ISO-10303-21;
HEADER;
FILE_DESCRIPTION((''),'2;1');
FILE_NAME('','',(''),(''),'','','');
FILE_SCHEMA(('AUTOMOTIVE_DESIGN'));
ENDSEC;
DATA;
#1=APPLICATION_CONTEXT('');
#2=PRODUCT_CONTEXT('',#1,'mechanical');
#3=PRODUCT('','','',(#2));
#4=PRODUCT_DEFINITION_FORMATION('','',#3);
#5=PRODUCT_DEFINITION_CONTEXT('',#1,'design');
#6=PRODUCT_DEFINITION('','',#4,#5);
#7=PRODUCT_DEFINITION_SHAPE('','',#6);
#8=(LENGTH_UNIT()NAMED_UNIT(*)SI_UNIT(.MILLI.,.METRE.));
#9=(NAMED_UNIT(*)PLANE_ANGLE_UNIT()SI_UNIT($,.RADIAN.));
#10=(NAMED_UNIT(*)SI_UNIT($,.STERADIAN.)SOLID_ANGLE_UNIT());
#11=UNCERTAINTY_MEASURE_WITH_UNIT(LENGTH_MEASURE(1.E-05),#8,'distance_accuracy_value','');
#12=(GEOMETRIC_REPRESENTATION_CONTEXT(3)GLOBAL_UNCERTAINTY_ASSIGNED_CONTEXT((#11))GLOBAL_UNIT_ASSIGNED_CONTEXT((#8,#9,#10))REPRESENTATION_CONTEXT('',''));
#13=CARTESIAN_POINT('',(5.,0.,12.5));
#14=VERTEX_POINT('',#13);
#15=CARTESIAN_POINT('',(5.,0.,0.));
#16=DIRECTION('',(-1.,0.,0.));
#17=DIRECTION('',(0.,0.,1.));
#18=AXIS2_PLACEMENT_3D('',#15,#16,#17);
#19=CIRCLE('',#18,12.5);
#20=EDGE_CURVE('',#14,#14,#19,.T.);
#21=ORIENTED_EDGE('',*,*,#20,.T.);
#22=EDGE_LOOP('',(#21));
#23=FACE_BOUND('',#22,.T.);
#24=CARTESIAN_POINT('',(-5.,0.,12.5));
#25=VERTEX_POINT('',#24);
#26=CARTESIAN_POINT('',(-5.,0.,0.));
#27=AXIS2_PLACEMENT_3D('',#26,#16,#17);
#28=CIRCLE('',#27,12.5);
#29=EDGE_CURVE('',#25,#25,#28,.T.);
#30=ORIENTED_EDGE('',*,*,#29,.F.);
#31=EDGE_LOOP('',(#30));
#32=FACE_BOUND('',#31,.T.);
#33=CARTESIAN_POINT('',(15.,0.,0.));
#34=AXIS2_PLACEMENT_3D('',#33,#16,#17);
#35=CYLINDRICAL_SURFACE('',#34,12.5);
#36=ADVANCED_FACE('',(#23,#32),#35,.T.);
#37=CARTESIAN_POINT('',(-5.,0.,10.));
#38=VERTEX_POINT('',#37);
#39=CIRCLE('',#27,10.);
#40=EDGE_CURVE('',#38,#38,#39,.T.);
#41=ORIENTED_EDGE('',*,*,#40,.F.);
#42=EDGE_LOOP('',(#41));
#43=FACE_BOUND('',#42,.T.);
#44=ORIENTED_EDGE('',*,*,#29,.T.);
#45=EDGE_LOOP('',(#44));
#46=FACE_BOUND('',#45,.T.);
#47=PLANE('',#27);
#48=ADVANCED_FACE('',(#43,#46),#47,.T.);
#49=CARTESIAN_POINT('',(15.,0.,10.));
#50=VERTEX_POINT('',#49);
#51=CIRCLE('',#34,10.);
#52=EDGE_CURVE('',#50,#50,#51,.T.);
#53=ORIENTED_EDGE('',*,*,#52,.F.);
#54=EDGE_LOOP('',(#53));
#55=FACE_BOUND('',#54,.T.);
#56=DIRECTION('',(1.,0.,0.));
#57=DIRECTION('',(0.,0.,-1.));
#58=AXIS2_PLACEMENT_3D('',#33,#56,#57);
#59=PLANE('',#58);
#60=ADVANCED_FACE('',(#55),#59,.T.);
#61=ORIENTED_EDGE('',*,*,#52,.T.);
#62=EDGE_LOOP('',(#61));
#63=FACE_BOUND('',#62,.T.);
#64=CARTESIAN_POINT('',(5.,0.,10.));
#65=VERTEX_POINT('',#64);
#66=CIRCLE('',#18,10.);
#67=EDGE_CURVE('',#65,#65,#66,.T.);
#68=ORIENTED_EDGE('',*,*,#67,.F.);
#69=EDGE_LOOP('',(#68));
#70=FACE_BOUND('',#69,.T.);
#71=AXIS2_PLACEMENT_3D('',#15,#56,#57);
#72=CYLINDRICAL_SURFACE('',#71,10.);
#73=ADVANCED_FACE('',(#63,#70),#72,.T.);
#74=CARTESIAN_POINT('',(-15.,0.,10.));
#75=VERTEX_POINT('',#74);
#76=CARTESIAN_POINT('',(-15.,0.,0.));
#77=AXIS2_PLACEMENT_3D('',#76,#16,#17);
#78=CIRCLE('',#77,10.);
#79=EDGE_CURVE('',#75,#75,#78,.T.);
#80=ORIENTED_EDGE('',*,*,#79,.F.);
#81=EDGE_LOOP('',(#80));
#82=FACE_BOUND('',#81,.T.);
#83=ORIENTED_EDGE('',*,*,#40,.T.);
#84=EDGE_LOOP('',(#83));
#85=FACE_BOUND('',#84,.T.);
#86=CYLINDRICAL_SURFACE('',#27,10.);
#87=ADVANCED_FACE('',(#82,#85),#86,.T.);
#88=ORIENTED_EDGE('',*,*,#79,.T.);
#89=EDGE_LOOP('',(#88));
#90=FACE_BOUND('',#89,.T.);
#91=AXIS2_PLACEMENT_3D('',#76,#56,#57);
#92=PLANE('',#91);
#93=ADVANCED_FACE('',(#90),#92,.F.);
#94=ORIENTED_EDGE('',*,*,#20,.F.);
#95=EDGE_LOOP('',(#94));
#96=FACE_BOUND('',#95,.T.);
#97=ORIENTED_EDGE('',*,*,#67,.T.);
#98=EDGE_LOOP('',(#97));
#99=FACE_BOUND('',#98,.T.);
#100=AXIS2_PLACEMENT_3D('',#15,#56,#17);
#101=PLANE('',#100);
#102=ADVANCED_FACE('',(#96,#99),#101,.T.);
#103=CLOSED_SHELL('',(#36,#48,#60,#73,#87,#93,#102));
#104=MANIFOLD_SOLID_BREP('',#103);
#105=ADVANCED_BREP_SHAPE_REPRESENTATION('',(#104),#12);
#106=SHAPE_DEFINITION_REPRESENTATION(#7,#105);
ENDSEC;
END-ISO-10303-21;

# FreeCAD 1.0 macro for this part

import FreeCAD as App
import Part
import Sketcher
from FreeCAD import Vector

doc = App.newDocument("Part")
body = doc.addObject("PartDesign::Body", "Body")

sketch1 = doc.addObject("Sketcher::SketchObject", "Sketch")
body.addObject(sketch1)
sketch1.AttachmentSupport = (doc.YZ_Plane, [""])
sketch1.MapMode = "FlatFace"
sketch1.addGeometry(Part.Circle(Vector(0, 0, 0), Vector(0, 0, 1), 12), False)
sketch1.addConstraint([
    Sketcher.Constraint("Coincident", 0, 3, -1, 1),
    Sketcher.Constraint("Diameter", 0, 25.0),
])
pad1 = doc.addObject("PartDesign::Pad", "Pad")
body.addObject(pad1)
pad1.Profile = sketch1
pad1.Length = 30
pad1.Midplane = True

sketch2 = doc.addObject("Sketcher::SketchObject", "Sketch001")
body.addObject(sketch2)
sketch2.AttachmentSupport = (doc.YZ_Plane, [""])
sketch2.MapMode = "FlatFace"
sketch2.AttachmentOffset = App.Placement(Vector(0, 0, -15), App.Rotation())
sketch2.addGeometry([
    Part.Circle(Vector(0, 0, 0), Vector(0, 0, 1), 12),
    Part.Circle(Vector(0, 0, 0), Vector(0, 0, 1), 10),
], False)
sketch2.addConstraint([
    Sketcher.Constraint("Coincident", 0, 3, -1, 1),
    Sketcher.Constraint("Coincident", 1, 3, -1, 1),
    Sketcher.Constraint("Diameter", 0, 25.0),
    Sketcher.Constraint("Diameter", 1, 20.0),
])
pocket1 = doc.addObject("PartDesign::Pocket", "Pocket")
body.addObject(pocket1)
pocket1.Profile = sketch2
pocket1.Length = 10
pocket1.Reversed = True
doc.recompute()

mirrored = doc.addObject("PartDesign::Mirrored", "Mirrored")
body.addObject(mirrored)
mirrored.Originals = [pocket1]
mirrored.MirrorPlane = (doc.YZ_Plane, [""])
body.Tip = mirrored

doc.recompute()
